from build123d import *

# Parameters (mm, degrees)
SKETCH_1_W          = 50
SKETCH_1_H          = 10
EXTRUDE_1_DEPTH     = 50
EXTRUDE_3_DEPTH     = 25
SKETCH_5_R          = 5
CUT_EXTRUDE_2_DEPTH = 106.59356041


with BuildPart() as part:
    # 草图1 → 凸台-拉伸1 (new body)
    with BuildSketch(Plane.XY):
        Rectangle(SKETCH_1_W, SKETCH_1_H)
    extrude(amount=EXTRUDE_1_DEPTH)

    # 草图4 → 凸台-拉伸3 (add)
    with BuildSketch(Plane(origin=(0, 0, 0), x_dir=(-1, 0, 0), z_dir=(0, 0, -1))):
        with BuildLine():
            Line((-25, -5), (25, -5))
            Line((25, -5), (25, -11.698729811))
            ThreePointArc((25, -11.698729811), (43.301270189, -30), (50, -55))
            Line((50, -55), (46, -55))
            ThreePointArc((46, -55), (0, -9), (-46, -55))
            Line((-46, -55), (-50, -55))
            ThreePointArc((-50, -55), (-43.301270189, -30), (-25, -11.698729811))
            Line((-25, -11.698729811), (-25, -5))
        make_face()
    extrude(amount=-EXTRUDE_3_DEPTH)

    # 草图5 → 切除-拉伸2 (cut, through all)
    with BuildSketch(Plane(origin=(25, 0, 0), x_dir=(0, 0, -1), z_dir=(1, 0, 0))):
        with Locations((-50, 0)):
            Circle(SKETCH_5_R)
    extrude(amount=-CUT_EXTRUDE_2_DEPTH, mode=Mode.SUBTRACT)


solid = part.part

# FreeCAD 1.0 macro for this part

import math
import FreeCAD as App
import Part
import Sketcher

doc = App.newDocument("Part")
body = doc.addObject("PartDesign::Body", "Body")

sketch1 = body.newObject("Sketcher::SketchObject", "Sketch")
sketch1.AttachmentSupport = (doc.getObject("XY_Plane"), [""])
sketch1.MapMode = "FlatFace"
sketch1.addGeometry([
    Part.LineSegment(App.Vector(-25, 5, 0), App.Vector(-25, -5, 0)),
    Part.LineSegment(App.Vector(-25, -5, 0), App.Vector(25, -5, 0)),
    Part.LineSegment(App.Vector(25, -5, 0), App.Vector(25, 5, 0)),
    Part.LineSegment(App.Vector(25, 5, 0), App.Vector(-25, 5, 0)),
], False)
sketch1.addConstraint([
    Sketcher.Constraint("Coincident", 0, 2, 1, 1),
    Sketcher.Constraint("Coincident", 1, 2, 2, 1),
    Sketcher.Constraint("Coincident", 2, 2, 3, 1),
    Sketcher.Constraint("Coincident", 3, 2, 0, 1),
    Sketcher.Constraint("Vertical", 0),
    Sketcher.Constraint("Horizontal", 1),
    Sketcher.Constraint("Vertical", 2),
    Sketcher.Constraint("Horizontal", 3),
    Sketcher.Constraint("Symmetric", 0, 2, 2, 2, -1, 1),
    Sketcher.Constraint("DistanceX", 1, 1, 1, 2, 50.0),
    Sketcher.Constraint("DistanceY", 0, 2, 0, 1, 10.0),
])
pad1 = body.newObject("PartDesign::Pad", "Pad")
pad1.Profile = sketch1
pad1.Length = 50

sketch2 = body.newObject("Sketcher::SketchObject", "Sketch001")
sketch2.AttachmentSupport = (doc.getObject("XY_Plane"), [""])
sketch2.MapMode = "FlatFace"
sketch2.addGeometry([
    Part.LineSegment(App.Vector(-25, -5, 0), App.Vector(25, -5, 0)),
    Part.LineSegment(App.Vector(25, -5, 0), App.Vector(25, -11.7, 0)),
    Part.ArcOfCircle(Part.Circle(App.Vector(0, -55, 0), App.Vector(0, 0, 1), 50), math.radians(0), math.radians(60)),
    Part.LineSegment(App.Vector(50, -55, 0), App.Vector(46, -55, 0)),
    Part.ArcOfCircle(Part.Circle(App.Vector(0, -55, 0), App.Vector(0, 0, 1), 46), math.radians(0), math.radians(180)),
    Part.LineSegment(App.Vector(-46, -55, 0), App.Vector(-50, -55, 0)),
    Part.ArcOfCircle(Part.Circle(App.Vector(0, -55, 0), App.Vector(0, 0, 1), 50), math.radians(120), math.radians(180)),
    Part.LineSegment(App.Vector(-25, -11.7, 0), App.Vector(-25, -5, 0)),
], False)
sketch2.addConstraint([
    Sketcher.Constraint("Coincident", 0, 2, 1, 1),
    Sketcher.Constraint("Coincident", 1, 2, 2, 2),
    Sketcher.Constraint("Coincident", 2, 1, 3, 1),
    Sketcher.Constraint("Coincident", 3, 2, 4, 1),
    Sketcher.Constraint("Coincident", 4, 2, 5, 1),
    Sketcher.Constraint("Coincident", 5, 2, 6, 2),
    Sketcher.Constraint("Coincident", 6, 1, 7, 1),
    Sketcher.Constraint("Coincident", 7, 2, 0, 1),
    Sketcher.Constraint("Horizontal", 0),
    Sketcher.Constraint("Vertical", 1),
    Sketcher.Constraint("Horizontal", 3),
    Sketcher.Constraint("Horizontal", 5),
    Sketcher.Constraint("Vertical", 7),
    Sketcher.Constraint("Coincident", 4, 3, 2, 3),
    Sketcher.Constraint("Coincident", 6, 3, 2, 3),
    Sketcher.Constraint("Equal", 2, 6),
    Sketcher.Constraint("Symmetric", 3, 2, 4, 2, -2),
    Sketcher.Constraint("Horizontal", 6, 3, 2, 1),
    Sketcher.Constraint("Horizontal", 1, 2, 6, 1),
    Sketcher.Constraint("Radius", 2, 50.0),
    Sketcher.Constraint("Radius", 4, 46.0),
    Sketcher.Constraint("DistanceX", 0, 1, 0, 2, 50.0),
    Sketcher.Constraint("DistanceY", 2, 3, -1, 1, 55.0),
    Sketcher.Constraint("DistanceY", 0, 2, -1, 1, 5.0),
])
pad2 = body.newObject("PartDesign::Pad", "Pad001")
pad2.Profile = sketch2
pad2.Length = 25

sketch3 = body.newObject("Sketcher::SketchObject", "Sketch002")
sketch3.AttachmentSupport = (doc.getObject("YZ_Plane"), [""])
sketch3.MapMode = "FlatFace"
sketch3.AttachmentOffset = App.Placement(App.Vector(0, 0, 25), App.Rotation())
sketch3.addGeometry(Part.Circle(App.Vector(0, 50, 0), App.Vector(0, 0, 1), 5), False)
sketch3.addConstraint([
    Sketcher.Constraint("PointOnObject", 0, 3, -2),
    Sketcher.Constraint("Diameter", 0, 10.0),
    Sketcher.Constraint("DistanceY", -1, 1, 0, 3, 50.0),
])
pocket1 = body.newObject("PartDesign::Pocket", "Pocket")
pocket1.Profile = sketch3
pocket1.Type = "ThroughAll"

doc.recompute()
